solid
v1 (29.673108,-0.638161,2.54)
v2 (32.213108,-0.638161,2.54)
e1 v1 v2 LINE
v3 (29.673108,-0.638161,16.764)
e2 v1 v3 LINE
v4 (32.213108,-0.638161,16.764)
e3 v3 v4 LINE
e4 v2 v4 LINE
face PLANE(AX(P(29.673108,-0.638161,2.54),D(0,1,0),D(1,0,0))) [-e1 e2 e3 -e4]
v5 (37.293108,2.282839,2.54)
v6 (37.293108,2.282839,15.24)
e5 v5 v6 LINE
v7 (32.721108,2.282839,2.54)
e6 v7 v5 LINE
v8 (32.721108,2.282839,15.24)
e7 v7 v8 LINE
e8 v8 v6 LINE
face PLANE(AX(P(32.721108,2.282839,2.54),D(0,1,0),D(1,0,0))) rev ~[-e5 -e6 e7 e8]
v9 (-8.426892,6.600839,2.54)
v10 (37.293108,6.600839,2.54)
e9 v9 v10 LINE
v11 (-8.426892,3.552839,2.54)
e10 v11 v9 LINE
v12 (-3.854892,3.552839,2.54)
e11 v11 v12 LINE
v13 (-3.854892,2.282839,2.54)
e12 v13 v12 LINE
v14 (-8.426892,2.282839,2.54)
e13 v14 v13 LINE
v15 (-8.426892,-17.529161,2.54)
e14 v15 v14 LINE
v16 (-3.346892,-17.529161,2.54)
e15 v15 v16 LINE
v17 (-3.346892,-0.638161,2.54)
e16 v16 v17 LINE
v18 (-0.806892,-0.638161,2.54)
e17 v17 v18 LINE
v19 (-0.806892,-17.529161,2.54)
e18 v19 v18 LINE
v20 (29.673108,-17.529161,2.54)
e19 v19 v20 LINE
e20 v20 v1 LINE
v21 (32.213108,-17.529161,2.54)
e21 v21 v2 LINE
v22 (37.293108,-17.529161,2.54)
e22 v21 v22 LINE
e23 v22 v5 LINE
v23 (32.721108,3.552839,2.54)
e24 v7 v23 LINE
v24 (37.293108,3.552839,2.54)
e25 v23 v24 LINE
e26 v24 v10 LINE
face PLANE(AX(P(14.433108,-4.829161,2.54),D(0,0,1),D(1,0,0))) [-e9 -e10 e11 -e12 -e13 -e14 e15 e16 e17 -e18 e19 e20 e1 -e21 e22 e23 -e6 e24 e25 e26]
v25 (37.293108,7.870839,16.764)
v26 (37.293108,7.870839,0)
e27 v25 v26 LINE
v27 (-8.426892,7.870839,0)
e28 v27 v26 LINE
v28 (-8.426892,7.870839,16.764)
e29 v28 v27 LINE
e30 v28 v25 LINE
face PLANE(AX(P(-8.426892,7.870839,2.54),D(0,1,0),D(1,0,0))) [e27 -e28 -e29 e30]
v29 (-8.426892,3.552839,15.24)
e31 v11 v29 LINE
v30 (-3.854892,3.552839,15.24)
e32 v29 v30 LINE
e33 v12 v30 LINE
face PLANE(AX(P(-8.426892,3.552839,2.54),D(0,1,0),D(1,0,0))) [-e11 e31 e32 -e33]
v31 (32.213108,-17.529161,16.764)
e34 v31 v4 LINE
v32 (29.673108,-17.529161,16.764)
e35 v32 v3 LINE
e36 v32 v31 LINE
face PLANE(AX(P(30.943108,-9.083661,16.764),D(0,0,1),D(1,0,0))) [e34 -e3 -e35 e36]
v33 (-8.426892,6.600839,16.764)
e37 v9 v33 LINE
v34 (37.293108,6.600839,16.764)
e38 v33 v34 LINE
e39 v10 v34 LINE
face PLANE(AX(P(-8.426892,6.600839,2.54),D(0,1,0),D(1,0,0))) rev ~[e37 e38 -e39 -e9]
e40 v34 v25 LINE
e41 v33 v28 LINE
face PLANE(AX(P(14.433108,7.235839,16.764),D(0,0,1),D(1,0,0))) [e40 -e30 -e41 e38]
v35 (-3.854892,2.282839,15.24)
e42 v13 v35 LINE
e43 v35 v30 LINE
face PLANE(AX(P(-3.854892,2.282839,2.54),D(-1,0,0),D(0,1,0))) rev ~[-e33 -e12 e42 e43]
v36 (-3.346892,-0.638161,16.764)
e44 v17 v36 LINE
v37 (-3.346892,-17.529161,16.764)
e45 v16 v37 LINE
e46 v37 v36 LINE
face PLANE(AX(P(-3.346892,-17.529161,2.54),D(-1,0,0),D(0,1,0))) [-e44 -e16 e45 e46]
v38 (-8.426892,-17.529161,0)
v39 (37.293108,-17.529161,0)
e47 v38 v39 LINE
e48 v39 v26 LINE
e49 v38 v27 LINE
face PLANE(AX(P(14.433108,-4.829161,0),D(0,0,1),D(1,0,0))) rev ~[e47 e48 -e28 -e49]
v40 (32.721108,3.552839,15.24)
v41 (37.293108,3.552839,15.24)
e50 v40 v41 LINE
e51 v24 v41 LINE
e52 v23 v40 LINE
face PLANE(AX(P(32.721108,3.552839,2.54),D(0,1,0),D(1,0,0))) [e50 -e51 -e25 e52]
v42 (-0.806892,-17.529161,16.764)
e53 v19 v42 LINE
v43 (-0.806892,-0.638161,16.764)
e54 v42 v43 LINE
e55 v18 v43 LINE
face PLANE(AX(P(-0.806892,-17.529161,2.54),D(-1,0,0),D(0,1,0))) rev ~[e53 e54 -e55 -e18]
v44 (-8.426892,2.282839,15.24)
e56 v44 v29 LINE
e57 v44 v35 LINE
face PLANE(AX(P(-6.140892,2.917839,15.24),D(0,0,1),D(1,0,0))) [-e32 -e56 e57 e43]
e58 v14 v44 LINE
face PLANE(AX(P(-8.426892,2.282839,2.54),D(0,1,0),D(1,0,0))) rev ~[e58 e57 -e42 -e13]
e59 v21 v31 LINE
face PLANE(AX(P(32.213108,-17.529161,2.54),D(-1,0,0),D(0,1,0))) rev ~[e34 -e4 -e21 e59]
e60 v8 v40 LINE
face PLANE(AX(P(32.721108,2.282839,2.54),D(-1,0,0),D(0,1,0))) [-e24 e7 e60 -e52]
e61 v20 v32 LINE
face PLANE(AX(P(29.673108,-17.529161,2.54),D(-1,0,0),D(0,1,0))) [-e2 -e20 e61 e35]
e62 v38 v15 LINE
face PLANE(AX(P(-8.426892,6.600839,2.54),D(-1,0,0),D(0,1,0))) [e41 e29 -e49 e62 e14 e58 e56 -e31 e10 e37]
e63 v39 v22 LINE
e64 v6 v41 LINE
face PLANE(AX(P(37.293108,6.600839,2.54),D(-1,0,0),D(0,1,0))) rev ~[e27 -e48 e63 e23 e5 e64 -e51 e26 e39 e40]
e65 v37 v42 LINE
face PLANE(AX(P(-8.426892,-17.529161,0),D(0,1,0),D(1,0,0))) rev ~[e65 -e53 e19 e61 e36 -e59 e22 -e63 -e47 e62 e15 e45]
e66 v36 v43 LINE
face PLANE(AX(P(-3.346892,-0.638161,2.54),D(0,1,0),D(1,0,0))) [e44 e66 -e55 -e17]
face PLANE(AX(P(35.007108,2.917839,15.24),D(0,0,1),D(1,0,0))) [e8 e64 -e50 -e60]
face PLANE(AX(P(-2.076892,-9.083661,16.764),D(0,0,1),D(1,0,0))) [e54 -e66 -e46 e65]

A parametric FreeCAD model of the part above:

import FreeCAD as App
import Part
import Sketcher
from FreeCAD import Vector
Q = App.Units.Quantity


def add_polygon(sketch, points):
    """Adds a closed chain of lines whose ends are joined by coincident constraints."""
    first, n = sketch.GeometryCount, len(points)
    for a, b in zip(points, points[1:] + points[:1]):
        sketch.addGeometry(Part.LineSegment(App.Vector(*a, 0), App.Vector(*b, 0)), False)
    for i in range(n):
        sketch.addConstraint(Sketcher.Constraint("Coincident", first + i, 2, first + (i + 1) % n, 1))

doc = App.newDocument("Part")
params = doc.addObject("Spreadsheet::Sheet", "Params")
for row, (alias, value) in enumerate([
    ("sketch1_height", "1 in"),
    ("sketch1_width", "1.8 in"),
    ("pad1_length", "0.1 in"),
    ("sketch2_width", "0.1 in"),
    ("sketch2_height", "0.665 in"),
    ("pad2_length", "0.56 in"),
    ("sketch3_width", "1.8 in"),
    ("sketch3_height", "0.05 in"),
    ("pad3_length", "0.56 in"),
    ("sketch4_width", "0.18 in"),
    ("sketch4_height", "0.05 in"),
    ("pad4_length", "0.5 in"),
], start=1):
    params.set(f"A{row}", alias)
    params.set(f"B{row}", "=" + value)
    params.setAlias(f"B{row}", alias)

body = doc.addObject("PartDesign::Body", "Body")

# Sketch on XY plane
sketch1 = doc.addObject("Sketcher::SketchObject", "Sketch")
body.addObject(sketch1)
sketch1.AttachmentSupport = (doc.XY_Plane, [""])
sketch1.MapMode = "FlatFace"
add_polygon(sketch1, [(-8, 8), (-8, -18), (37, -18), (37, 8)])  # lines 0-3
sketch1.addConstraint(Sketcher.Constraint("Vertical", 0))
sketch1.addConstraint(Sketcher.Constraint("Horizontal", 1))
sketch1.addConstraint(Sketcher.Constraint("Vertical", 2))
sketch1.addConstraint(Sketcher.Constraint("Horizontal", 3))
sketch1.addConstraint(Sketcher.Constraint("DistanceY", 0, 2, 0, 1, Q("1 in")))
sketch1.addConstraint(Sketcher.Constraint("DistanceX", 1, 1, 1, 2, Q("1.8 in")))
sketch1.addConstraint(Sketcher.Constraint("DistanceY", 0, 2, -1, 1, Q("17.529161 mm")))
sketch1.addConstraint(Sketcher.Constraint("DistanceX", 0, 2, -1, 1, Q("8.426892 mm")))
sketch1.setExpression("Constraints[8]", "Params.sketch1_height")
sketch1.setExpression("Constraints[9]", "Params.sketch1_width")
pad1 = doc.addObject("PartDesign::Pad", "Pad")
body.addObject(pad1)
pad1.Profile = sketch1
pad1.setExpression("Length", "Params.pad1_length")

# Sketch on XY plane
sketch2 = doc.addObject("Sketcher::SketchObject", "Sketch001")
body.addObject(sketch2)
sketch2.AttachmentSupport = (doc.XY_Plane, [""])
sketch2.MapMode = "FlatFace"
sketch2.AttachmentOffset = App.Placement(Vector(0, 0, 0.1 * 25.4), App.Rotation())
add_polygon(sketch2, [(-3.3, -0.6), (-3.3, -17.5), (-0.8, -17.5), (-0.8, -0.6)])  # lines 0-3
add_polygon(sketch2, [(29.7, -0.6), (29.7, -17.5), (32.2, -17.5), (32.2, -0.6)])  # lines 4-7
sketch2.addConstraint(Sketcher.Constraint("Vertical", 0))
sketch2.addConstraint(Sketcher.Constraint("Horizontal", 1))
sketch2.addConstraint(Sketcher.Constraint("Vertical", 2))
sketch2.addConstraint(Sketcher.Constraint("Horizontal", 3))
sketch2.addConstraint(Sketcher.Constraint("Vertical", 4))
sketch2.addConstraint(Sketcher.Constraint("Horizontal", 5))
sketch2.addConstraint(Sketcher.Constraint("Vertical", 6))
sketch2.addConstraint(Sketcher.Constraint("Horizontal", 7))
sketch2.addConstraint(Sketcher.Constraint("Horizontal", 1, 2, 4, 2))
sketch2.addConstraint(Sketcher.Constraint("Horizontal", 3, 2, 6, 2))
sketch2.addConstraint(Sketcher.Constraint("Equal", 3, 5))
sketch2.addConstraint(Sketcher.Constraint("DistanceX", 1, 1, 1, 2, Q("0.1 in")))
sketch2.addConstraint(Sketcher.Constraint("DistanceX", 1, 2, 4, 2, Q("1.2 in")))
sketch2.addConstraint(Sketcher.Constraint("DistanceY", 0, 2, 0, 1, Q("0.665 in")))
sketch2.addConstraint(Sketcher.Constraint("DistanceX", 0, 2, -1, 1, Q("3.346892 mm")))
sketch2.addConstraint(Sketcher.Constraint("DistanceY", 0, 2, -1, 1, Q("17.529161 mm")))
sketch2.setExpression("Constraints[19]", "Params.sketch2_width")
sketch2.setExpression("Constraints[21]", "Params.sketch2_height")
pad2 = doc.addObject("PartDesign::Pad", "Pad001")
body.addObject(pad2)
pad2.Profile = sketch2
pad2.setExpression("Length", "Params.pad2_length")

# Sketch on XY plane
sketch3 = doc.addObject("Sketcher::SketchObject", "Sketch002")
body.addObject(sketch3)
sketch3.AttachmentSupport = (doc.XY_Plane, [""])
sketch3.MapMode = "FlatFace"
sketch3.AttachmentOffset = App.Placement(Vector(0, 0, 0.1 * 25.4), App.Rotation())
add_polygon(sketch3, [(-8.4, 7.9), (-8.4, 6.6), (37.3, 6.6), (37.3, 7.9)])  # lines 0-3
sketch3.addConstraint(Sketcher.Constraint("Vertical", 0))
sketch3.addConstraint(Sketcher.Constraint("Horizontal", 1))
sketch3.addConstraint(Sketcher.Constraint("Vertical", 2))
sketch3.addConstraint(Sketcher.Constraint("Horizontal", 3))
sketch3.addConstraint(Sketcher.Constraint("DistanceX", 1, 1, 1, 2, Q("1.8 in")))
sketch3.addConstraint(Sketcher.Constraint("DistanceY", 0, 2, 0, 1, Q("0.05 in")))
sketch3.addConstraint(Sketcher.Constraint("DistanceY", -1, 1, 0, 2, Q("6.600839 mm")))
sketch3.addConstraint(Sketcher.Constraint("DistanceX", 0, 2, -1, 1, Q("8.426892 mm")))
sketch3.setExpression("Constraints[8]", "Params.sketch3_width")
sketch3.setExpression("Constraints[9]", "Params.sketch3_height")
pad3 = doc.addObject("PartDesign::Pad", "Pad002")
body.addObject(pad3)
pad3.Profile = sketch3
pad3.setExpression("Length", "Params.pad3_length")

# Sketch on XY plane
sketch4 = doc.addObject("Sketcher::SketchObject", "Sketch003")
body.addObject(sketch4)
sketch4.AttachmentSupport = (doc.XY_Plane, [""])
sketch4.MapMode = "FlatFace"
sketch4.AttachmentOffset = App.Placement(Vector(0, 0, 0.1 * 25.4), App.Rotation())
add_polygon(sketch4, [(-8.4, 3.6), (-8.4, 2.3), (-3.9, 2.3), (-3.9, 3.6)])  # lines 0-3
add_polygon(sketch4, [(32.7, 3.6), (32.7, 2.3), (37.3, 2.3), (37.3, 3.6)])  # lines 4-7
sketch4.addConstraint(Sketcher.Constraint("Vertical", 0))
sketch4.addConstraint(Sketcher.Constraint("Horizontal", 1))
sketch4.addConstraint(Sketcher.Constraint("Vertical", 2))
sketch4.addConstraint(Sketcher.Constraint("Horizontal", 3))
sketch4.addConstraint(Sketcher.Constraint("Vertical", 4))
sketch4.addConstraint(Sketcher.Constraint("Horizontal", 5))
sketch4.addConstraint(Sketcher.Constraint("Vertical", 6))
sketch4.addConstraint(Sketcher.Constraint("Horizontal", 7))
sketch4.addConstraint(Sketcher.Constraint("Horizontal", 1, 2, 4, 2))
sketch4.addConstraint(Sketcher.Constraint("Horizontal", 3, 2, 6, 2))
sketch4.addConstraint(Sketcher.Constraint("Equal", 3, 5))
sketch4.addConstraint(Sketcher.Constraint("DistanceX", 1, 1, 1, 2, Q("0.18 in")))
sketch4.addConstraint(Sketcher.Constraint("DistanceY", 0, 2, 0, 1, Q("0.05 in")))
sketch4.addConstraint(Sketcher.Constraint("DistanceX", 0, 2, 5, 2, Q("1.8 in")))
sketch4.addConstraint(Sketcher.Constraint("DistanceY", -1, 1, 0, 2, Q("2.282839 mm")))
sketch4.addConstraint(Sketcher.Constraint("DistanceX", 1, 2, -1, 1, Q("3.854892 mm")))
sketch4.setExpression("Constraints[19]", "Params.sketch4_width")
sketch4.setExpression("Constraints[20]", "Params.sketch4_height")
pad4 = doc.addObject("PartDesign::Pad", "Pad003")
body.addObject(pad4)
pad4.Profile = sketch4
pad4.setExpression("Length", "Params.pad4_length")

doc.recompute()
